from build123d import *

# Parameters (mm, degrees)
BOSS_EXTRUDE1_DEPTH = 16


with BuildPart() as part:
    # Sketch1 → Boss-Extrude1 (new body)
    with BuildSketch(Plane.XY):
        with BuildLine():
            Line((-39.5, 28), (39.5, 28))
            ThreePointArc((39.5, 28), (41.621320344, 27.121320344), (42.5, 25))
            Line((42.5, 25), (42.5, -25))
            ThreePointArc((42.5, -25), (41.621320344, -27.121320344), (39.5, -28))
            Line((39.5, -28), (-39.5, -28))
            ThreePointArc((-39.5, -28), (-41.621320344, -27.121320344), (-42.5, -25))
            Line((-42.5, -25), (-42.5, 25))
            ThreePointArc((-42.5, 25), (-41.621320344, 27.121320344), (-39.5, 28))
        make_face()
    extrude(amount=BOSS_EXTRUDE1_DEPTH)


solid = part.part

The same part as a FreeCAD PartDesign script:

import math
import FreeCAD as App
import Part
import Sketcher

V = App.Vector

doc = App.newDocument("Part")
body = doc.addObject("PartDesign::Body", "Body")

sketch1 = body.newObject("Sketcher::SketchObject", "Sketch")
sketch1.AttachmentSupport = (doc.getObject("XY_Plane"), [""])
sketch1.MapMode = "FlatFace"
sketch1.addGeometry([
    Part.LineSegment(V(39.5, 28, 0), V(-39.5, 28, 0)),
    Part.ArcOfCircle(Part.Circle(V(-39.5, 25, 0), V(0, 0, 1), 3), math.radians(90), math.radians(180)),
    Part.LineSegment(V(-42.5, 25, 0), V(-42.5, -25, 0)),
    Part.ArcOfCircle(Part.Circle(V(-39.5, -25, 0), V(0, 0, 1), 3), math.radians(180), math.radians(270)),
    Part.LineSegment(V(-39.5, -28, 0), V(39.5, -28, 0)),
    Part.ArcOfCircle(Part.Circle(V(39.5, -25, 0), V(0, 0, 1), 3), math.radians(-90), math.radians(0)),
    Part.LineSegment(V(42.5, -25, 0), V(42.5, 25, 0)),
    Part.ArcOfCircle(Part.Circle(V(39.5, 25, 0), V(0, 0, 1), 3), math.radians(0), math.radians(90)),
], False)
sketch1.addConstraint([
    Sketcher.Constraint("Tangent", 0, 2, 1, 1),
    Sketcher.Constraint("Tangent", 1, 2, 2, 1),
    Sketcher.Constraint("Tangent", 2, 2, 3, 1),
    Sketcher.Constraint("Tangent", 3, 2, 4, 1),
    Sketcher.Constraint("Tangent", 4, 2, 5, 1),
    Sketcher.Constraint("Tangent", 5, 2, 6, 1),
    Sketcher.Constraint("Tangent", 6, 2, 7, 1),
    Sketcher.Constraint("Tangent", 7, 2, 0, 1),
    Sketcher.Constraint("Horizontal", 0),
    Sketcher.Constraint("Vertical", 2),
    Sketcher.Constraint("Horizontal", 4),
    Sketcher.Constraint("Vertical", 6),
    Sketcher.Constraint("Equal", 1, 3),
    Sketcher.Constraint("Equal", 3, 5),
    Sketcher.Constraint("Equal", 5, 7),
    Sketcher.Constraint("Symmetric", 1, 3, 5, 3, -1, 1),
    Sketcher.Constraint("Radius", 1, 3.0),
    Sketcher.Constraint("DistanceX", 0, 2, 0, 1, 79.0),
    Sketcher.Constraint("DistanceY", 2, 2, 2, 1, 50.0),
])
pad1 = body.newObject("PartDesign::Pad", "Pad")
pad1.Profile = sketch1
pad1.Length = 16

doc.recompute()
